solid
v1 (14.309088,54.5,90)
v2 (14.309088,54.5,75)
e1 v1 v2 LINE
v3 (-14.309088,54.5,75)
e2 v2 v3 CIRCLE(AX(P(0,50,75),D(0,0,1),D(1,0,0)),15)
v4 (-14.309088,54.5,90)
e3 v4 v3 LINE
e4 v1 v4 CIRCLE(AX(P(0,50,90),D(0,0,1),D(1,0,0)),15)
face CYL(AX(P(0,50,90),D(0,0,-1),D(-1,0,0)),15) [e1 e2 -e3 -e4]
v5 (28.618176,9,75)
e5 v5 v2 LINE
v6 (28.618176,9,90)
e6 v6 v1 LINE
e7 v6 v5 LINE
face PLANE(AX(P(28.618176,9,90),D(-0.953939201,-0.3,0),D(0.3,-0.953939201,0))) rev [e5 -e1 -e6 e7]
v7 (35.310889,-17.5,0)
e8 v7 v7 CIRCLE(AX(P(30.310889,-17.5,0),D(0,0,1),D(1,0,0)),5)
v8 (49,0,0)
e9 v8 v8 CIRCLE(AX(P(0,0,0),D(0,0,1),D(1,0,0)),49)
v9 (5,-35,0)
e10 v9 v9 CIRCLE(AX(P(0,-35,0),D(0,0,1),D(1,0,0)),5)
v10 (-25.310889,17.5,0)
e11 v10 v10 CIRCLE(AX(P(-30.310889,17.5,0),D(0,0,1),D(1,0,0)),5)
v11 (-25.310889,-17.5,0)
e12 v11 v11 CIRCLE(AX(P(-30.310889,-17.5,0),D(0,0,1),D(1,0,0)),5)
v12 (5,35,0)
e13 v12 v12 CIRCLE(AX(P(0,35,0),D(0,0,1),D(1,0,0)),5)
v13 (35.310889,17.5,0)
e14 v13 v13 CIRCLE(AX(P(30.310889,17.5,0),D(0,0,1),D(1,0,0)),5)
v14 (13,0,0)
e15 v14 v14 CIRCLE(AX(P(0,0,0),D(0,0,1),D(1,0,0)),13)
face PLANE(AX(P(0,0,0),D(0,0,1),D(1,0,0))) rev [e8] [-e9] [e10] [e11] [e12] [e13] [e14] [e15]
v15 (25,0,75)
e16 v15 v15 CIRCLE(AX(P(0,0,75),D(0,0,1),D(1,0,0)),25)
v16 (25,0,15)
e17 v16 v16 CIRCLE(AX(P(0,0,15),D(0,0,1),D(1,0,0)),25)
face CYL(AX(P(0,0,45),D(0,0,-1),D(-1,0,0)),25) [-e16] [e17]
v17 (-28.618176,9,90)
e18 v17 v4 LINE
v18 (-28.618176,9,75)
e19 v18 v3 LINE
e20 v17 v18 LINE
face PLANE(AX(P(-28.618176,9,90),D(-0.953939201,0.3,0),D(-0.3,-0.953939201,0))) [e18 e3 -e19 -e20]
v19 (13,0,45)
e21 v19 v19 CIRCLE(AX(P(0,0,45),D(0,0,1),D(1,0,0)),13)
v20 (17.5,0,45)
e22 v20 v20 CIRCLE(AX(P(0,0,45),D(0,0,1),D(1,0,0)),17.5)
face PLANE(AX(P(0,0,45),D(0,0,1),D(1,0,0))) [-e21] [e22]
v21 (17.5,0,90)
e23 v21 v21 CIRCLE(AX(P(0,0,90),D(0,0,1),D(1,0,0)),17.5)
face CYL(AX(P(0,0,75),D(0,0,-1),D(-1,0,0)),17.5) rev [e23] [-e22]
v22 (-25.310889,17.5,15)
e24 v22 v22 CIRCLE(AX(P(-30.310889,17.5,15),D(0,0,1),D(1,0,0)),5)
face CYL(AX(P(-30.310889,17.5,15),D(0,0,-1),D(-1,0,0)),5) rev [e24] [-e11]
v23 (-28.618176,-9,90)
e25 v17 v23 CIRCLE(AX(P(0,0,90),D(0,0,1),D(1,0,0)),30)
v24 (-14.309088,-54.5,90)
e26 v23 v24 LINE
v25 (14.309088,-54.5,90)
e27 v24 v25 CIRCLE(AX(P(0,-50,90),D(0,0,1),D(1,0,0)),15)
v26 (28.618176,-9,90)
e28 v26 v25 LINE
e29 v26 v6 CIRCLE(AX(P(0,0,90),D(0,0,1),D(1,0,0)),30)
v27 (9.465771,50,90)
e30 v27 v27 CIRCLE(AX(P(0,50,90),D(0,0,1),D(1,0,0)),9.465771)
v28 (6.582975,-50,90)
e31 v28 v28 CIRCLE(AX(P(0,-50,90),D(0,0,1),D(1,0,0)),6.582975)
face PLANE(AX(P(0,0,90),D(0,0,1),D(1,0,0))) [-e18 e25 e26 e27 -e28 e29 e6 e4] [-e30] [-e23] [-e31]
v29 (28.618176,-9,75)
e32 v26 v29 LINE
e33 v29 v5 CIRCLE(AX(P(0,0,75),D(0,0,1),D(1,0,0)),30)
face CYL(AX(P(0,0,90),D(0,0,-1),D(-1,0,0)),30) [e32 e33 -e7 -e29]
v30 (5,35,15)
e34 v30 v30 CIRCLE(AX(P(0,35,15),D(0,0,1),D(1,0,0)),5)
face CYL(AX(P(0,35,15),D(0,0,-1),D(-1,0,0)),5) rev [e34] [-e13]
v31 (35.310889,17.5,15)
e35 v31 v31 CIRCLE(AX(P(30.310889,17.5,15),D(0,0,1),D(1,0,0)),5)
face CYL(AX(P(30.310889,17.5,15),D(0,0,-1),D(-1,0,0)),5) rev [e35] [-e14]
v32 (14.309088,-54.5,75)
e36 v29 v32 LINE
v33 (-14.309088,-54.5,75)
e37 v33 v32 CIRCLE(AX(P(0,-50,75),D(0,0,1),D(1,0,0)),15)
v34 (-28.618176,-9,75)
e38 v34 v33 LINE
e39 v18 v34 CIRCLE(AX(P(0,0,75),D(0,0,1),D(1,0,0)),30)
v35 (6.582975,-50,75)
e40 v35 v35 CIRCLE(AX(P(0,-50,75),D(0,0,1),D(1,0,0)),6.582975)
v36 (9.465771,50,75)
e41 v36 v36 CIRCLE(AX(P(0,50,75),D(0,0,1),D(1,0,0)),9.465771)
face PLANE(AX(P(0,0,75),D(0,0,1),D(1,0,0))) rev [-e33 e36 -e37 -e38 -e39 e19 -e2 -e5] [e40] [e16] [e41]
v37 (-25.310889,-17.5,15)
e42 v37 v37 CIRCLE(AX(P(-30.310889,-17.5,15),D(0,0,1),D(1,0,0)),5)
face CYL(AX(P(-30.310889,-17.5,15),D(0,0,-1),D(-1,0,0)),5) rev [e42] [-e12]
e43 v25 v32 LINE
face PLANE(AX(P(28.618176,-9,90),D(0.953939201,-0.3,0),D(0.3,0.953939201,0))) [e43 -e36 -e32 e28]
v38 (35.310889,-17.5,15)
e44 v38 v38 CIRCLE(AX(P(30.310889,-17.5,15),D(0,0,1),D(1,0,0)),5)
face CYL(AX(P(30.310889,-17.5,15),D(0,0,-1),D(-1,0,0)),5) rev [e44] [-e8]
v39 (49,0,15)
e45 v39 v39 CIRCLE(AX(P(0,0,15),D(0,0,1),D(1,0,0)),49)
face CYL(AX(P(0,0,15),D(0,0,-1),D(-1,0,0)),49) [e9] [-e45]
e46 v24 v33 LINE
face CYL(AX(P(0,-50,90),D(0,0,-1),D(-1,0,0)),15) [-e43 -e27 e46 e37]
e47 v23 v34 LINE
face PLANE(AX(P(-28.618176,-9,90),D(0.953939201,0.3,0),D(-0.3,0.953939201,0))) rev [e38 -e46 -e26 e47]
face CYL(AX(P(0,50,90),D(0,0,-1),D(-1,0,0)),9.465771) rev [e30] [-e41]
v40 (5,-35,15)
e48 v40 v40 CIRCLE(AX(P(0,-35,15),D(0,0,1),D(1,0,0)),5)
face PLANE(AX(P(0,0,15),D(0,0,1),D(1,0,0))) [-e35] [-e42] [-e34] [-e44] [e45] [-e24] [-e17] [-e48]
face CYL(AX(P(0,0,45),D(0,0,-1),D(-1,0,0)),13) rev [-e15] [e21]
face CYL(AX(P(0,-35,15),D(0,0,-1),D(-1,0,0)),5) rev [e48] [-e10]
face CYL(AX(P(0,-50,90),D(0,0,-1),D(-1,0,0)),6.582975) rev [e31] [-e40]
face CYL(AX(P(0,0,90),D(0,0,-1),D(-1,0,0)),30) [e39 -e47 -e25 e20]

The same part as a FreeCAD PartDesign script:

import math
import FreeCAD as App
import Part
import Sketcher

V = App.Vector

doc = App.newDocument("Part")
body = doc.addObject("PartDesign::Body", "Body")

# Sketch on XY plane
sketch1 = body.newObject("Sketcher::SketchObject", "Sketch")
sketch1.AttachmentSupport = (doc.getObject("XY_Plane"), [""])
sketch1.MapMode = "FlatFace"
sketch1.addGeometry([
    Part.Circle(V(0, 0, 0), V(0, 0, 1), 49),  # 0
    Part.Circle(V(-30.310889, -17.5, 0), V(0, 0, 1), 5),  # 1
    Part.Circle(V(0, -35, 0), V(0, 0, 1), 5),  # 2
    Part.Circle(V(30.310889, -17.5, 0), V(0, 0, 1), 5),  # 3
    Part.Circle(V(-30.310889, 17.5, 0), V(0, 0, 1), 5),  # 4
    Part.Circle(V(0, 0, 0), V(0, 0, 1), 25),  # 5
    Part.Circle(V(30.310889, 17.5, 0), V(0, 0, 1), 5),  # 6
    Part.Circle(V(0, 35, 0), V(0, 0, 1), 5),  # 7
], False)
sketch1.addConstraint([
    Sketcher.Constraint("Coincident", 0, 3, -1, 1),
    Sketcher.Constraint("Coincident", 5, 3, -1, 1),
    Sketcher.Constraint("Equal", 1, 2),
    Sketcher.Constraint("Equal", 2, 3),
    Sketcher.Constraint("Equal", 3, 4),
    Sketcher.Constraint("Equal", 4, 6),
    Sketcher.Constraint("Equal", 6, 7),
    Sketcher.Constraint("Symmetric", 3, 3, 4, 3, -1, 1),
    Sketcher.Constraint("Symmetric", 1, 3, 6, 3, -1, 1),
    Sketcher.Constraint("Symmetric", 2, 3, 7, 3, -1, 1),
    Sketcher.Constraint("Symmetric", 1, 3, 3, 3, -2),
    Sketcher.Constraint("PointOnObject", 2, 3, -2),
    Sketcher.Constraint("Diameter", 0, 98.0),
    Sketcher.Constraint("Diameter", 1, 10.0),
    Sketcher.Constraint("Diameter", 5, 50.0),
    Sketcher.Constraint("DistanceY", 2, 3, -1, 1, 35.0),
    Sketcher.Constraint("DistanceY", 1, 3, 4, 3, 35.0),
    Sketcher.Constraint("DistanceX", 1, 3, -1, 1, 30.310889),
])
pad1 = body.newObject("PartDesign::Pad", "Pad")
pad1.Profile = sketch1
pad1.Length = 15

# Sketch on XY plane
sketch2 = body.newObject("Sketcher::SketchObject", "Sketch001")
sketch2.AttachmentSupport = (doc.getObject("XY_Plane"), [""])
sketch2.MapMode = "FlatFace"
sketch2.addGeometry([
    Part.Circle(V(0, 0, 0), V(0, 0, 1), 25),
    Part.Circle(V(0, 0, 0), V(0, 0, 1), 13),
], False)
sketch2.addConstraint([
    Sketcher.Constraint("Coincident", 0, 3, -1, 1),
    Sketcher.Constraint("Coincident", 1, 3, -1, 1),
    Sketcher.Constraint("Diameter", 0, 50.0),
    Sketcher.Constraint("Diameter", 1, 26.0),
])
pad2 = body.newObject("PartDesign::Pad", "Pad001")
pad2.Profile = sketch2
pad2.Length = 45

# Sketch on XY plane
sketch3 = body.newObject("Sketcher::SketchObject", "Sketch002")
sketch3.AttachmentSupport = (doc.getObject("XY_Plane"), [""])
sketch3.MapMode = "FlatFace"
sketch3.AttachmentOffset = App.Placement(V(0, 0, 45), App.Rotation())
sketch3.addGeometry([
    Part.Circle(V(0, 0, 0), V(0, 0, 1), 25),
    Part.Circle(V(0, 0, 0), V(0, 0, 1), 17.5),
], False)
sketch3.addConstraint([
    Sketcher.Constraint("Coincident", 0, 3, -1, 1),
    Sketcher.Constraint("Coincident", 1, 3, -1, 1),
    Sketcher.Constraint("Diameter", 0, 50.0),
    Sketcher.Constraint("Diameter", 1, 35.0),
])
pad3 = body.newObject("PartDesign::Pad", "Pad002")
pad3.Profile = sketch3
pad3.Length = 30

# Sketch on XY plane
sketch4 = body.newObject("Sketcher::SketchObject", "Sketch003")
sketch4.AttachmentSupport = (doc.getObject("XY_Plane"), [""])
sketch4.MapMode = "FlatFace"
sketch4.AttachmentOffset = App.Placement(V(0, 0, 75), App.Rotation())
sketch4.addGeometry([
    Part.LineSegment(V(14.309088, -54.5, 0), V(28.618176, -9, 0)),  # 0
    Part.ArcOfCircle(Part.Circle(V(0, 0, 0), V(0, 0, 1), 30), math.radians(-17.457604), math.radians(17.457604)),  # 1
    Part.LineSegment(V(28.618176, 9, 0), V(14.309088, 54.5, 0)),  # 2
    Part.ArcOfCircle(Part.Circle(V(0, 50, 0), V(0, 0, 1), 15), math.radians(17.457603), math.radians(162.542397)),  # 3
    Part.LineSegment(V(-14.309088, 54.5, 0), V(-28.618176, 9.000001, 0)),  # 4
    Part.ArcOfCircle(Part.Circle(V(0, 0, 0), V(0, 0, 1), 30), math.radians(162.542395), math.radians(197.457604)),  # 5
    Part.LineSegment(V(-28.618176, -9.000001, 0), V(-14.309088, -54.5, 0)),  # 6
    Part.ArcOfCircle(Part.Circle(V(0, -50, 0), V(0, 0, 1), 15), math.radians(-162.542397), math.radians(-17.457603)),  # 7
    Part.Circle(V(0, -50, 0), V(0, 0, 1), 6.582975),  # 8
    Part.Circle(V(0, 50, 0), V(0, 0, 1), 9.465771),  # 9
], False)
sketch4.addConstraint([
    Sketcher.Constraint("Tangent", 0, 2, 1, 1),
    Sketcher.Constraint("Tangent", 1, 2, 2, 1),
    Sketcher.Constraint("Tangent", 2, 2, 3, 1),
    Sketcher.Constraint("Tangent", 3, 2, 4, 1),
    Sketcher.Constraint("Tangent", 4, 2, 5, 1),
    Sketcher.Constraint("Tangent", 5, 2, 6, 1),
    Sketcher.Constraint("Tangent", 6, 2, 7, 1),
    Sketcher.Constraint("Tangent", 7, 2, 0, 1),
    Sketcher.Constraint("Coincident", 1, 3, -1, 1),
    Sketcher.Constraint("Coincident", 5, 3, -1, 1),
    Sketcher.Constraint("Coincident", 8, 3, 7, 3),
    Sketcher.Constraint("Coincident", 9, 3, 3, 3),
    Sketcher.Constraint("Equal", 1, 5),
    Sketcher.Constraint("Equal", 3, 7),
    Sketcher.Constraint("Symmetric", 3, 3, 7, 3, -1, 1),
    Sketcher.Constraint("PointOnObject", 3, 3, -2),
    Sketcher.Constraint("Radius", 1, 30.0),
    Sketcher.Constraint("Radius", 3, 15.0),
    Sketcher.Constraint("DistanceY", -1, 1, 3, 3, 50.0),
    Sketcher.Constraint("Diameter", 8, 13.165949),
    Sketcher.Constraint("Diameter", 9, 18.931543),
])
pad4 = body.newObject("PartDesign::Pad", "Pad003")
pad4.Profile = sketch4
pad4.Length = 15

# Sketch on XY plane
sketch5 = body.newObject("Sketcher::SketchObject", "Sketch004")
sketch5.AttachmentSupport = (doc.getObject("XY_Plane"), [""])
sketch5.MapMode = "FlatFace"
sketch5.AttachmentOffset = App.Placement(V(0, 0, 90), App.Rotation())
sketch5.addGeometry(Part.Circle(V(0, 0, 0), V(0, 0, 1), 17.5), False)
sketch5.addConstraint([
    Sketcher.Constraint("Coincident", 0, 3, -1, 1),
    Sketcher.Constraint("Diameter", 0, 35.0),
])
pocket1 = body.newObject("PartDesign::Pocket", "Pocket")
pocket1.Profile = sketch5
pocket1.Length = 15

doc.recompute()
